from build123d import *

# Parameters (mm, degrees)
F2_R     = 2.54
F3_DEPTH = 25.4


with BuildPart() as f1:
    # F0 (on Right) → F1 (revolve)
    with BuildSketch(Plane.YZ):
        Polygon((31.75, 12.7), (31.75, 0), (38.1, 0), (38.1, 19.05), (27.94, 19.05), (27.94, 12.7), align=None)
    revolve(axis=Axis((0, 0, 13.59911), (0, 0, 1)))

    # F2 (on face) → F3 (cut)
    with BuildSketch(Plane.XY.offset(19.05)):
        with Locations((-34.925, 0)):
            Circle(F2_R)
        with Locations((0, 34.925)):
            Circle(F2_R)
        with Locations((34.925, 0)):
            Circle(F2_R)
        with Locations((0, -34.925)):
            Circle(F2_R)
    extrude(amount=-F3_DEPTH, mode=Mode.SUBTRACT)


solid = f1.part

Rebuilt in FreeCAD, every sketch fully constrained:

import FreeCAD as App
import Part
import Sketcher
from FreeCAD import Vector
Q = App.Units.Quantity

doc = App.newDocument("Part")
params = doc.addObject("Spreadsheet::Sheet", "Params")
for row, (alias, value) in enumerate([
    ("sketch1_width", "0.4 in"),
    ("sketch1_height", "0.5 in"),
    ("sketch1_width2", "0.25 in"),
    ("revolution_angle", "360 deg"),
    ("sketch2_diameter", "0.2 in"),
    ("pocket1_length", "1 in"),
], start=1):
    params.set(f"A{row}", alias)
    params.set(f"B{row}", "=" + value)
    params.setAlias(f"B{row}", alias)

body = doc.addObject("PartDesign::Body", "Body")

# Sketch on YZ plane
sketch1 = doc.addObject("Sketcher::SketchObject", "Sketch")
body.addObject(sketch1)
sketch1.AttachmentSupport = (doc.YZ_Plane, [""])
sketch1.MapMode = "FlatFace"
sketch1.addGeometry([
    Part.LineSegment(Vector(31.8, 12.7, 0), Vector(31.8, 0, 0)),  # 0
    Part.LineSegment(Vector(31.8, 0, 0), Vector(38.1, 0, 0)),  # 1
    Part.LineSegment(Vector(38.1, 0, 0), Vector(38.1, 19.1, 0)),  # 2
    Part.LineSegment(Vector(38.1, 19.1, 0), Vector(27.9, 19.1, 0)),  # 3
    Part.LineSegment(Vector(27.9, 19.1, 0), Vector(27.9, 12.7, 0)),  # 4
    Part.LineSegment(Vector(27.9, 12.7, 0), Vector(31.8, 12.7, 0)),  # 5
], False)
sketch1.addConstraint([
    Sketcher.Constraint("Coincident", 0, 2, 1, 1),
    Sketcher.Constraint("Coincident", 1, 2, 2, 1),
    Sketcher.Constraint("Coincident", 2, 2, 3, 1),
    Sketcher.Constraint("Coincident", 3, 2, 4, 1),
    Sketcher.Constraint("Coincident", 4, 2, 5, 1),
    Sketcher.Constraint("Coincident", 5, 2, 0, 1),
    Sketcher.Constraint("Vertical", 0),
    Sketcher.Constraint("Horizontal", 1),
    Sketcher.Constraint("Vertical", 2),
    Sketcher.Constraint("Horizontal", 3),
    Sketcher.Constraint("Vertical", 4),
    Sketcher.Constraint("Horizontal", 5),
    Sketcher.Constraint("PointOnObject", 0, 2, -1),
    Sketcher.Constraint("Equal", 1, 4),
    Sketcher.Constraint("DistanceX", 3, 2, 3, 1, Q("0.4 in")),
    Sketcher.Constraint("DistanceY", 0, 2, 0, 1, Q("0.5 in")),
    Sketcher.Constraint("DistanceX", 1, 1, 1, 2, Q("0.25 in")),
    Sketcher.Constraint("DistanceX", -1, 1, 1, 2, Q("1.5 in")),
])
sketch1.setExpression("Constraints[14]", "Params.sketch1_width")
sketch1.setExpression("Constraints[15]", "Params.sketch1_height")
sketch1.setExpression("Constraints[16]", "Params.sketch1_width2")
revolution = doc.addObject("PartDesign::Revolution", "Revolution")
body.addObject(revolution)
revolution.Profile = sketch1
revolution.ReferenceAxis = (sketch1, ["V_Axis"])
revolution.setExpression("Angle", "Params.revolution_angle")

# Sketch on XY plane
sketch2 = doc.addObject("Sketcher::SketchObject", "Sketch001")
body.addObject(sketch2)
sketch2.AttachmentSupport = (doc.XY_Plane, [""])
sketch2.MapMode = "FlatFace"
sketch2.AttachmentOffset = App.Placement(Vector(0, 0, 0.75 * 25.4), App.Rotation())
sketch2.addGeometry([
    Part.Circle(Vector(-34.9, 0, 0), Vector(0, 0, 1), 2.5),
    Part.Circle(Vector(0, 34.9, 0), Vector(0, 0, 1), 2.5),
    Part.Circle(Vector(34.9, 0, 0), Vector(0, 0, 1), 2.5),
    Part.Circle(Vector(0, -34.9, 0), Vector(0, 0, 1), 2.5),
], False)
sketch2.addConstraint([
    Sketcher.Constraint("Equal", 0, 1),
    Sketcher.Constraint("Equal", 1, 2),
    Sketcher.Constraint("Equal", 2, 3),
    Sketcher.Constraint("Symmetric", 0, 3, 2, 3, -1, 1),
    Sketcher.Constraint("Symmetric", 1, 3, 3, 3, -1, 1),
    Sketcher.Constraint("PointOnObject", 0, 3, -1),
    Sketcher.Constraint("PointOnObject", 1, 3, -2),
    Sketcher.Constraint("Diameter", 0, Q("0.2 in")),
    Sketcher.Constraint("DistanceX", 0, 3, 2, 3, Q("2.75 in")),
    Sketcher.Constraint("DistanceY", 3, 3, 1, 3, Q("2.75 in")),
])
sketch2.setExpression("Constraints[7]", "Params.sketch2_diameter")
pocket1 = doc.addObject("PartDesign::Pocket", "Pocket")
body.addObject(pocket1)
pocket1.Profile = sketch2
pocket1.setExpression("Length", "Params.pocket1_length")

doc.recompute()
